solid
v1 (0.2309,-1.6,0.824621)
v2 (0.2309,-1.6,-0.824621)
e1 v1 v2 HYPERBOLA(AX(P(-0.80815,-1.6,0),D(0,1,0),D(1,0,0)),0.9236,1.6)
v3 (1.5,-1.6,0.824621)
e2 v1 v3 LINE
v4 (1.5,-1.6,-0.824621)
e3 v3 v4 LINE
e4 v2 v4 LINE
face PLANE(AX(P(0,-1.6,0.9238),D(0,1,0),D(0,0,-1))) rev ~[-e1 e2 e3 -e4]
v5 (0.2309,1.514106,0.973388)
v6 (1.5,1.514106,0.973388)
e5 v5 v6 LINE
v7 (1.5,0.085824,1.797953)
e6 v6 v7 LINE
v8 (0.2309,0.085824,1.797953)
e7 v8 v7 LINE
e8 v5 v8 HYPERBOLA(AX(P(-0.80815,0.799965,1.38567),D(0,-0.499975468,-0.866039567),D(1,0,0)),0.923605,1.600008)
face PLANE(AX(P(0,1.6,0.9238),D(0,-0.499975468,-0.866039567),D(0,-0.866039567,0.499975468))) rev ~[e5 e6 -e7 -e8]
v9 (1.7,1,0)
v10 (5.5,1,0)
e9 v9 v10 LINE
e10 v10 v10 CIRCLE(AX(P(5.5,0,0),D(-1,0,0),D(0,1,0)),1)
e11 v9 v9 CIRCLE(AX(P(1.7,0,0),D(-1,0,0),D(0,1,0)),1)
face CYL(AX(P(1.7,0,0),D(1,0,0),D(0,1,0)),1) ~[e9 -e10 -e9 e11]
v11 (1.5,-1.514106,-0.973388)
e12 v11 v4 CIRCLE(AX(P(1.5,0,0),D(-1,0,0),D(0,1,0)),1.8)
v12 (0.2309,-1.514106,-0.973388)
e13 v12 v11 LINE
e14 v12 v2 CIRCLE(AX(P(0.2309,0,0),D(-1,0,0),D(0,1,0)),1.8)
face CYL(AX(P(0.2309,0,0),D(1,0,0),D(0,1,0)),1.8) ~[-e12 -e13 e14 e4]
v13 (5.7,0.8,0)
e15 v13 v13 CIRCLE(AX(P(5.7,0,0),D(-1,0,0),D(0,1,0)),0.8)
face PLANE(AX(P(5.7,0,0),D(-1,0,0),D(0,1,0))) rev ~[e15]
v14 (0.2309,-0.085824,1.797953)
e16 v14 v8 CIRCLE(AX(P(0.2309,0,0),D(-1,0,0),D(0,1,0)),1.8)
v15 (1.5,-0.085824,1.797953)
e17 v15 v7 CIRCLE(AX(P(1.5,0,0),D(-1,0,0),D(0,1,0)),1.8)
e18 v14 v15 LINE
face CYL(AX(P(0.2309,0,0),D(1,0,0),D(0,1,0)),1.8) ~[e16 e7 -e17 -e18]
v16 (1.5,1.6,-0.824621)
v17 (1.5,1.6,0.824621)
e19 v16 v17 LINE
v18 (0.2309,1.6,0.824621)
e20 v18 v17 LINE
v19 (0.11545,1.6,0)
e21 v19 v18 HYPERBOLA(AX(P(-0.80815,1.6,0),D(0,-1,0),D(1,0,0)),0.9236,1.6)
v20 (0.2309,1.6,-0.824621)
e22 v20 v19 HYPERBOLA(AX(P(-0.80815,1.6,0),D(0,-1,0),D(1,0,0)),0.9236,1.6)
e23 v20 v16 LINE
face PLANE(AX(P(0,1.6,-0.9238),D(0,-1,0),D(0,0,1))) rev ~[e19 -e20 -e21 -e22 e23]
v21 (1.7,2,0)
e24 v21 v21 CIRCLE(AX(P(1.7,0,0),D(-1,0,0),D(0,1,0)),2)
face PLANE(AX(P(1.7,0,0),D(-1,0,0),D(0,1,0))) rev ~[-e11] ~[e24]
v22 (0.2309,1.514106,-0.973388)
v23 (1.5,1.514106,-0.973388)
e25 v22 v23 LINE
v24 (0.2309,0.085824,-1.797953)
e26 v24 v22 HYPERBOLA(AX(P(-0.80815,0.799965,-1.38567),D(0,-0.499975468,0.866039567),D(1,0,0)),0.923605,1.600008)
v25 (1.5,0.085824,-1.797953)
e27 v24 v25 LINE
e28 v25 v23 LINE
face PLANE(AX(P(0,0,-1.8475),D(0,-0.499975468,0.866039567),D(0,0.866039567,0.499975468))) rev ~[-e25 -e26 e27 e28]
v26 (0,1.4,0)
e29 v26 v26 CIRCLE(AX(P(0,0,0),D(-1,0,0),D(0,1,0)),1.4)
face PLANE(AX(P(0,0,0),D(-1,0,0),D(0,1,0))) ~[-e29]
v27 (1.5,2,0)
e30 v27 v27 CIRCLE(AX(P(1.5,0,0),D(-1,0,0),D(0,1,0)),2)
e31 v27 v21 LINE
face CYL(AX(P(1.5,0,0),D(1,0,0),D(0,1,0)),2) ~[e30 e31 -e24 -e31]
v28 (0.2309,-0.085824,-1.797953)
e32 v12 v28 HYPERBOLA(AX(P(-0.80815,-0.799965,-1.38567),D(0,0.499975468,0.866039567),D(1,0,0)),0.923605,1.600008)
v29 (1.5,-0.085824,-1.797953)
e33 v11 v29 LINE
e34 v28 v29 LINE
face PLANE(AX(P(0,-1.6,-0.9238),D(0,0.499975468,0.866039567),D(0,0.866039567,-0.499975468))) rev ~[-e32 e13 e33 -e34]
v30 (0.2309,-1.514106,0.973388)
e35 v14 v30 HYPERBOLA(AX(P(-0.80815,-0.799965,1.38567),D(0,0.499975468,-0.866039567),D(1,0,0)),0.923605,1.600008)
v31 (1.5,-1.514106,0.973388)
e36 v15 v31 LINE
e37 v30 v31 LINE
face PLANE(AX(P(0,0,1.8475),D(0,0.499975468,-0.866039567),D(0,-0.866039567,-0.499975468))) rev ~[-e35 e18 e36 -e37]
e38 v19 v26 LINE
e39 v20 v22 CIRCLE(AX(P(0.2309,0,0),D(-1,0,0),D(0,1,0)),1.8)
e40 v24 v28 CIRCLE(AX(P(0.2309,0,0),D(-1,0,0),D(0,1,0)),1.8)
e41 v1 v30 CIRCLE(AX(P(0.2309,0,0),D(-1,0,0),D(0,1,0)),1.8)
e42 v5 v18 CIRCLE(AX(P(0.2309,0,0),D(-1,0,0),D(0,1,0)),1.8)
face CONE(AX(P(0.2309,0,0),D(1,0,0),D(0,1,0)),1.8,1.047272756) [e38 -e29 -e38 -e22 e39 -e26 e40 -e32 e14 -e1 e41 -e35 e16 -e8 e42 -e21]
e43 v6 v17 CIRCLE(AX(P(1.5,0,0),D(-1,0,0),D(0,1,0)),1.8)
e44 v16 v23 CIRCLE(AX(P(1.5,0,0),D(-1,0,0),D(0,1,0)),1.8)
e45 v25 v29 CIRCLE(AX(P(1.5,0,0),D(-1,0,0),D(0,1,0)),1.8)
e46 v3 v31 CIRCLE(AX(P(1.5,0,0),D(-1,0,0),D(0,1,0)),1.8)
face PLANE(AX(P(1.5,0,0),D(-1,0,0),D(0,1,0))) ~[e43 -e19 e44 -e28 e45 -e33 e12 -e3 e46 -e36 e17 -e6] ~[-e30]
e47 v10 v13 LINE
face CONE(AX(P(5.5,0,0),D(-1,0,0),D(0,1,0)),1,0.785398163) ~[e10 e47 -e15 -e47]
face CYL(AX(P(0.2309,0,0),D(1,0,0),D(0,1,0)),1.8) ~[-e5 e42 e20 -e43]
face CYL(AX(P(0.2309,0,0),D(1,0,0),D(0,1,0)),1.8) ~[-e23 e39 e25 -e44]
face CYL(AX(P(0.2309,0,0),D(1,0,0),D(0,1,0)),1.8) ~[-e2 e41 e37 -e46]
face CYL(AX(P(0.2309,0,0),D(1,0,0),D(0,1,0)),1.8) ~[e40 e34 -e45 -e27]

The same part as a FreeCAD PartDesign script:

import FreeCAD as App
import Part
import Sketcher

V = App.Vector
Q = App.Units.Quantity


def edges_at(feature, points):
    """Names of the edges that pass closest to the given points."""
    edges = feature.Shape.Edges
    near = lambda p: min(range(len(edges)), key=lambda i: edges[i].distToShape(Part.Vertex(*p))[0])
    return sorted({f"Edge{near(p) + 1}" for p in points})


def add_polygon(sketch, points):
    """Adds a closed chain of lines whose ends are joined by coincident constraints."""
    first, n = sketch.GeometryCount, len(points)
    for a, b in zip(points, points[1:] + points[:1]):
        sketch.addGeometry(Part.LineSegment(App.Vector(*a, 0), App.Vector(*b, 0)), False)
    for i in range(n):
        sketch.addConstraint(Sketcher.Constraint("Coincident", first + i, 2, first + (i + 1) % n, 1))

doc = App.newDocument("Part")
body = doc.addObject("PartDesign::Body", "Body")

# Sketch on XY plane
sketch1 = doc.addObject("Sketcher::SketchObject", "Sketch")
body.addObject(sketch1)
sketch1.AttachmentSupport = (doc.XY_Plane, [""])
sketch1.MapMode = "FlatFace"
add_polygon(sketch1, [(0, 1.4), (0, 0), (5.7, 0), (5.7, 1), (1.7, 1), (1.7, 2), (1.5, 2), (1.5, 1.8), (0.23, 1.8)])  # lines 0-8
sketch1.addConstraint([
    Sketcher.Constraint("Vertical", 0),
    Sketcher.Constraint("Horizontal", 1),
    Sketcher.Constraint("Vertical", 2),
    Sketcher.Constraint("Horizontal", 3),
    Sketcher.Constraint("Vertical", 4),
    Sketcher.Constraint("Horizontal", 5),
    Sketcher.Constraint("Vertical", 6),
    Sketcher.Constraint("Horizontal", 7),
    Sketcher.Constraint("Coincident", 0, 2, -1, 1),
    Sketcher.Constraint("Equal", 2, 4),
    Sketcher.Constraint("Equal", 5, 6),
    Sketcher.Constraint("DistanceX", 3, 2, 3, 1, Q("4 mm")),
    Sketcher.Constraint("DistanceY", 2, 1, 2, 2, Q("1 mm")),
    Sketcher.Constraint("DistanceX", 5, 2, 5, 1, Q("0.2 mm")),
    Sketcher.Constraint("DistanceX", -1, 1, 5, 2, Q("1.5 mm")),
    Sketcher.Constraint("DistanceY", 8, 2, 7, 2, Q("0.4 mm")),
    Sketcher.Constraint("DistanceX", 7, 2, 7, 1, Q("1.269 mm")),
])
revolution = doc.addObject("PartDesign::Revolution", "Revolution")
body.addObject(revolution)
revolution.Profile = sketch1
revolution.ReferenceAxis = (sketch1, ["H_Axis"])
revolution.Angle = 360
doc.recompute()

chamfer = doc.addObject("PartDesign::Chamfer", "Chamfer")
body.addObject(chamfer)
chamfer.Base = (revolution, edges_at(revolution, [(5.7, -1, 0)]))
chamfer.Size = 0.2

# Sketch on YZ plane
sketch2 = doc.addObject("Sketcher::SketchObject", "Sketch001")
body.addObject(sketch2)
sketch2.AttachmentSupport = (doc.YZ_Plane, [""])
sketch2.MapMode = "FlatFace"
sketch2.addGeometry(Part.Circle(V(0, 0, 0), V(0, 0, 1), 2.7), False)  # 0
add_polygon(sketch2, [(1.6, -0.9), (1.6, 0.9), (0, 1.8), (-1.6, 0.9), (-1.6, -0.9), (0, -1.8)])  # lines 1-6
sketch2.addConstraint([
    Sketcher.Constraint("Vertical", 1),
    Sketcher.Constraint("Vertical", 4),
    Sketcher.Constraint("Coincident", 0, 3, -1, 1),
    Sketcher.Constraint("Symmetric", 1, 2, 4, 2, -1, 1),
    Sketcher.Constraint("Symmetric", 2, 2, 5, 2, -1, 1),
    Sketcher.Constraint("PointOnObject", 2, 2, -2),
    Sketcher.Constraint("Parallel", 3, 6),
    Sketcher.Constraint("Horizontal", 1, 2, 3, 2),
    Sketcher.Constraint("DistanceX", 3, 2, 1, 2, Q("3.2 mm")),
    Sketcher.Constraint("Diameter", 0, Q("5.3146 mm")),
    Sketcher.Constraint("DistanceY", 1, 1, 1, 2, Q("1.8476 mm")),
    Sketcher.Constraint("DistanceY", 5, 2, 2, 2, Q("3.695 mm")),
])
pocket1 = doc.addObject("PartDesign::Pocket", "Pocket")
body.addObject(pocket1)
pocket1.Profile = sketch2
pocket1.Length = 1.5
pocket1.Reversed = True

doc.recompute()
